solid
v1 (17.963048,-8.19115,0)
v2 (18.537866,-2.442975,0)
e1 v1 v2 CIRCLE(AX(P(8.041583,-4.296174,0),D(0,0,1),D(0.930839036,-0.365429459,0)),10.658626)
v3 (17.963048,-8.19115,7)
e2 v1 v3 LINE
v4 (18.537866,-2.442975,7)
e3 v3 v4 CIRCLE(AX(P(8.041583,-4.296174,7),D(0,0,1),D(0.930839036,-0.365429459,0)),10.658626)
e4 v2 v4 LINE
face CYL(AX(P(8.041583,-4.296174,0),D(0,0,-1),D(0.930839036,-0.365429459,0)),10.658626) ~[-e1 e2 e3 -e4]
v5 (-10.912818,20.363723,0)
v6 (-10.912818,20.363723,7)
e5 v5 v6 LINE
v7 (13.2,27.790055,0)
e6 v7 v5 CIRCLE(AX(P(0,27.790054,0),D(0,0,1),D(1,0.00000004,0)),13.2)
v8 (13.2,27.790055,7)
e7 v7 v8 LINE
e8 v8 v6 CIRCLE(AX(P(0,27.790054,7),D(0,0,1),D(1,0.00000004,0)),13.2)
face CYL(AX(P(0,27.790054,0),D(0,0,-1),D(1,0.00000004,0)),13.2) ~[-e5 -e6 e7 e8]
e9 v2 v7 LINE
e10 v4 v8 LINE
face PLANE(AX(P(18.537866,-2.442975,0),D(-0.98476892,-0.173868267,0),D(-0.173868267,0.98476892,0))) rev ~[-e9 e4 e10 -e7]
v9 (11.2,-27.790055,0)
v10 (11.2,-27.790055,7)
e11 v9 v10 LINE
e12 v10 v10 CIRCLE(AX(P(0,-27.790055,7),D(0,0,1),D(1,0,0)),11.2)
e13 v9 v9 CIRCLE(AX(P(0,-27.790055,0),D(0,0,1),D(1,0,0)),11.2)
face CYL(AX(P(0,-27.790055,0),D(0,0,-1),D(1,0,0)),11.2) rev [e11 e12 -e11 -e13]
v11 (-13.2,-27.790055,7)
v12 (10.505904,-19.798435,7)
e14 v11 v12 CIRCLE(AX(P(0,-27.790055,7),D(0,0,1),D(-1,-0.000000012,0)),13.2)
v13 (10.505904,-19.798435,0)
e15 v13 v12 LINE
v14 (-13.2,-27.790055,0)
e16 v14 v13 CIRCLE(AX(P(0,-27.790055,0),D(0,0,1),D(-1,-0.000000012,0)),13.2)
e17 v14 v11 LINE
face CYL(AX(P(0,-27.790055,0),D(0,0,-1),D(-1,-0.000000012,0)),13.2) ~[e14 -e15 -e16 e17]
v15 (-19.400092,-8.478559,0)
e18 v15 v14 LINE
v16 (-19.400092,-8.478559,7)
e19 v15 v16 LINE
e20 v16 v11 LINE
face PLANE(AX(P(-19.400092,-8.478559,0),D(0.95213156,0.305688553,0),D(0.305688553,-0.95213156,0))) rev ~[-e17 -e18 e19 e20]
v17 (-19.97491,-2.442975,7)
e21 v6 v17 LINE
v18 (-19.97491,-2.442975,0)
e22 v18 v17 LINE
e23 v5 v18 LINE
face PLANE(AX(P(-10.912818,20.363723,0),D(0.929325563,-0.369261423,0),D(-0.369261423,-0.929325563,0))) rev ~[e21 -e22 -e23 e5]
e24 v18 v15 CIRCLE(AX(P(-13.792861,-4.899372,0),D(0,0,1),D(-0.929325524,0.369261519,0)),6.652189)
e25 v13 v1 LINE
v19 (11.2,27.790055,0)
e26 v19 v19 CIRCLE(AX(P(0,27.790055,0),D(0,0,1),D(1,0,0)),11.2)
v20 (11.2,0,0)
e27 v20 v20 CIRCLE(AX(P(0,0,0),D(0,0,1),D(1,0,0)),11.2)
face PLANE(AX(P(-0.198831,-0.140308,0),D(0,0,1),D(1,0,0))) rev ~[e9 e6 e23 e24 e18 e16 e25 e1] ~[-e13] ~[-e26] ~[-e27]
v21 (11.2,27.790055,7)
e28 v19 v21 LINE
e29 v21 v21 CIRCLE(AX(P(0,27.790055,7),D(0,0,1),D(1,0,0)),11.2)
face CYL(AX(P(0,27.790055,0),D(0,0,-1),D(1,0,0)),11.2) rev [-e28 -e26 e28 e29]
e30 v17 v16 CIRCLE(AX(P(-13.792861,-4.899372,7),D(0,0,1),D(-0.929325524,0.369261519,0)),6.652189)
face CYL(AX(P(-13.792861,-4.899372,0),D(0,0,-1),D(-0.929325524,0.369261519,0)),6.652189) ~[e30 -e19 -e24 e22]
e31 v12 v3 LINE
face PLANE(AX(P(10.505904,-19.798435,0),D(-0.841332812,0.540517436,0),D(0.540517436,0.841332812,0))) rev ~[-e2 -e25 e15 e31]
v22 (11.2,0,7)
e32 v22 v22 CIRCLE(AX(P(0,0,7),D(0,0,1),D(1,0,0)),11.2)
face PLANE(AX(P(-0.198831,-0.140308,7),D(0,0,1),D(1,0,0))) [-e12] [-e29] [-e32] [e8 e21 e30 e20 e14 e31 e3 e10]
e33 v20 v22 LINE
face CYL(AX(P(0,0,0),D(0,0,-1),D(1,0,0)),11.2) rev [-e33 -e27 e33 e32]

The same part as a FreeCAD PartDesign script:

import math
import FreeCAD as App
import Part
import Sketcher

V = App.Vector
Q = App.Units.Quantity

doc = App.newDocument("Part")
params = doc.addObject("Spreadsheet::Sheet", "Params")
for row, (alias, value) in enumerate([
    ("sketch1_diameter", "22.4 mm"),
    ("sketch1_radius", "13.2 mm"),
    ("pad1_length", "7 mm"),
], start=1):
    params.set(f"A{row}", alias)
    params.set(f"B{row}", "=" + value)
    params.setAlias(f"B{row}", alias)

body = doc.addObject("PartDesign::Body", "Body")

sketch1 = body.newObject("Sketcher::SketchObject", "Sketch")
sketch1.AttachmentSupport = (doc.getObject("XY_Plane"), [""])
sketch1.MapMode = "FlatFace"
sketch1.addGeometry([
    Part.LineSegment(V(19, -2, 0), V(13, 28, 0)),
    Part.ArcOfCircle(Part.Circle(V(0, 28, 0), V(0, 0, 1), 13), math.radians(0), math.radians(214)),
    Part.LineSegment(V(-11, 20, 0), V(-20, -2, 0)),
    Part.ArcOfCircle(Part.Circle(V(-14, -5, 0), V(0, 0, 1), 7), math.radians(158), math.radians(213)),
    Part.LineSegment(V(-19, -8, 0), V(-13, -28, 0)),
    Part.ArcOfCircle(Part.Circle(V(0, -28, 0), V(0, 0, 1), 13), math.radians(-180), math.radians(37)),
    Part.LineSegment(V(11, -20, 0), V(18, -8, 0)),
    Part.ArcOfCircle(Part.Circle(V(8, -4, 0), V(0, 0, 1), 11), math.radians(-21), math.radians(10)),
    Part.Circle(V(0, -28, 0), V(0, 0, 1), 11),
    Part.Circle(V(0, 0, 0), V(0, 0, 1), 11),
    Part.Circle(V(0, 28, 0), V(0, 0, 1), 11),
], False)
sketch1.addConstraint([
    Sketcher.Constraint("Coincident", 0, 2, 1, 1),
    Sketcher.Constraint("Coincident", 1, 2, 2, 1),
    Sketcher.Constraint("Tangent", 2, 2, 3, 1),
    Sketcher.Constraint("Coincident", 3, 2, 4, 1),
    Sketcher.Constraint("Coincident", 4, 2, 5, 1),
    Sketcher.Constraint("Coincident", 5, 2, 6, 1),
    Sketcher.Constraint("Coincident", 6, 2, 7, 1),
    Sketcher.Constraint("Tangent", 7, 2, 0, 1),
    Sketcher.Constraint("Coincident", 9, 3, -1, 1),
    Sketcher.Constraint("Coincident", 8, 3, 5, 3),
    Sketcher.Constraint("Coincident", 10, 3, 1, 3),
    Sketcher.Constraint("Equal", 1, 5),
    Sketcher.Constraint("Equal", 8, 9),
    Sketcher.Constraint("Equal", 9, 10),
    Sketcher.Constraint("Symmetric", 1, 3, 5, 3, -1, 1),
    Sketcher.Constraint("PointOnObject", 1, 3, -2),
    Sketcher.Constraint("Horizontal", 10, 3, 0, 2),
    Sketcher.Constraint("Horizontal", 8, 3, 4, 2),
    Sketcher.Constraint("Horizontal", 2, 2, 7, 2),
    Sketcher.Constraint("Diameter", 8, Q("22.4 mm")),
    Sketcher.Constraint("Radius", 1, Q("13.2 mm")),
    Sketcher.Constraint("Radius", 3, Q("6.652189 mm")),
    Sketcher.Constraint("Radius", 7, Q("10.658626 mm")),
    Sketcher.Constraint("DistanceY", 3, 3, 7, 3, Q("0.603198 mm")),
    Sketcher.Constraint("DistanceY", 2, 2, 1, 2, Q("22.806698 mm")),
    Sketcher.Constraint("DistanceY", 7, 3, 2, 2, Q("1.853199 mm")),
    Sketcher.Constraint("Distance", 4, Q("20.282382 mm")),
    Sketcher.Constraint("DistanceX", 3, 3, -1, 1, Q("13.792861 mm")),
    Sketcher.Constraint("DistanceY", 3, 2, -1, 1, Q("8.478559 mm")),
    Sketcher.Constraint("DistanceX", -1, 1, 6, 2, Q("17.963048 mm")),
    Sketcher.Constraint("DistanceY", 5, 3, 5, 2, Q("7.99162 mm")),
])
sketch1.setExpression("Constraints[19]", "Params.sketch1_diameter")
sketch1.setExpression("Constraints[20]", "Params.sketch1_radius")
pad1 = body.newObject("PartDesign::Pad", "Pad")
pad1.Profile = sketch1
pad1.setExpression("Length", "Params.pad1_length")

doc.recompute()
